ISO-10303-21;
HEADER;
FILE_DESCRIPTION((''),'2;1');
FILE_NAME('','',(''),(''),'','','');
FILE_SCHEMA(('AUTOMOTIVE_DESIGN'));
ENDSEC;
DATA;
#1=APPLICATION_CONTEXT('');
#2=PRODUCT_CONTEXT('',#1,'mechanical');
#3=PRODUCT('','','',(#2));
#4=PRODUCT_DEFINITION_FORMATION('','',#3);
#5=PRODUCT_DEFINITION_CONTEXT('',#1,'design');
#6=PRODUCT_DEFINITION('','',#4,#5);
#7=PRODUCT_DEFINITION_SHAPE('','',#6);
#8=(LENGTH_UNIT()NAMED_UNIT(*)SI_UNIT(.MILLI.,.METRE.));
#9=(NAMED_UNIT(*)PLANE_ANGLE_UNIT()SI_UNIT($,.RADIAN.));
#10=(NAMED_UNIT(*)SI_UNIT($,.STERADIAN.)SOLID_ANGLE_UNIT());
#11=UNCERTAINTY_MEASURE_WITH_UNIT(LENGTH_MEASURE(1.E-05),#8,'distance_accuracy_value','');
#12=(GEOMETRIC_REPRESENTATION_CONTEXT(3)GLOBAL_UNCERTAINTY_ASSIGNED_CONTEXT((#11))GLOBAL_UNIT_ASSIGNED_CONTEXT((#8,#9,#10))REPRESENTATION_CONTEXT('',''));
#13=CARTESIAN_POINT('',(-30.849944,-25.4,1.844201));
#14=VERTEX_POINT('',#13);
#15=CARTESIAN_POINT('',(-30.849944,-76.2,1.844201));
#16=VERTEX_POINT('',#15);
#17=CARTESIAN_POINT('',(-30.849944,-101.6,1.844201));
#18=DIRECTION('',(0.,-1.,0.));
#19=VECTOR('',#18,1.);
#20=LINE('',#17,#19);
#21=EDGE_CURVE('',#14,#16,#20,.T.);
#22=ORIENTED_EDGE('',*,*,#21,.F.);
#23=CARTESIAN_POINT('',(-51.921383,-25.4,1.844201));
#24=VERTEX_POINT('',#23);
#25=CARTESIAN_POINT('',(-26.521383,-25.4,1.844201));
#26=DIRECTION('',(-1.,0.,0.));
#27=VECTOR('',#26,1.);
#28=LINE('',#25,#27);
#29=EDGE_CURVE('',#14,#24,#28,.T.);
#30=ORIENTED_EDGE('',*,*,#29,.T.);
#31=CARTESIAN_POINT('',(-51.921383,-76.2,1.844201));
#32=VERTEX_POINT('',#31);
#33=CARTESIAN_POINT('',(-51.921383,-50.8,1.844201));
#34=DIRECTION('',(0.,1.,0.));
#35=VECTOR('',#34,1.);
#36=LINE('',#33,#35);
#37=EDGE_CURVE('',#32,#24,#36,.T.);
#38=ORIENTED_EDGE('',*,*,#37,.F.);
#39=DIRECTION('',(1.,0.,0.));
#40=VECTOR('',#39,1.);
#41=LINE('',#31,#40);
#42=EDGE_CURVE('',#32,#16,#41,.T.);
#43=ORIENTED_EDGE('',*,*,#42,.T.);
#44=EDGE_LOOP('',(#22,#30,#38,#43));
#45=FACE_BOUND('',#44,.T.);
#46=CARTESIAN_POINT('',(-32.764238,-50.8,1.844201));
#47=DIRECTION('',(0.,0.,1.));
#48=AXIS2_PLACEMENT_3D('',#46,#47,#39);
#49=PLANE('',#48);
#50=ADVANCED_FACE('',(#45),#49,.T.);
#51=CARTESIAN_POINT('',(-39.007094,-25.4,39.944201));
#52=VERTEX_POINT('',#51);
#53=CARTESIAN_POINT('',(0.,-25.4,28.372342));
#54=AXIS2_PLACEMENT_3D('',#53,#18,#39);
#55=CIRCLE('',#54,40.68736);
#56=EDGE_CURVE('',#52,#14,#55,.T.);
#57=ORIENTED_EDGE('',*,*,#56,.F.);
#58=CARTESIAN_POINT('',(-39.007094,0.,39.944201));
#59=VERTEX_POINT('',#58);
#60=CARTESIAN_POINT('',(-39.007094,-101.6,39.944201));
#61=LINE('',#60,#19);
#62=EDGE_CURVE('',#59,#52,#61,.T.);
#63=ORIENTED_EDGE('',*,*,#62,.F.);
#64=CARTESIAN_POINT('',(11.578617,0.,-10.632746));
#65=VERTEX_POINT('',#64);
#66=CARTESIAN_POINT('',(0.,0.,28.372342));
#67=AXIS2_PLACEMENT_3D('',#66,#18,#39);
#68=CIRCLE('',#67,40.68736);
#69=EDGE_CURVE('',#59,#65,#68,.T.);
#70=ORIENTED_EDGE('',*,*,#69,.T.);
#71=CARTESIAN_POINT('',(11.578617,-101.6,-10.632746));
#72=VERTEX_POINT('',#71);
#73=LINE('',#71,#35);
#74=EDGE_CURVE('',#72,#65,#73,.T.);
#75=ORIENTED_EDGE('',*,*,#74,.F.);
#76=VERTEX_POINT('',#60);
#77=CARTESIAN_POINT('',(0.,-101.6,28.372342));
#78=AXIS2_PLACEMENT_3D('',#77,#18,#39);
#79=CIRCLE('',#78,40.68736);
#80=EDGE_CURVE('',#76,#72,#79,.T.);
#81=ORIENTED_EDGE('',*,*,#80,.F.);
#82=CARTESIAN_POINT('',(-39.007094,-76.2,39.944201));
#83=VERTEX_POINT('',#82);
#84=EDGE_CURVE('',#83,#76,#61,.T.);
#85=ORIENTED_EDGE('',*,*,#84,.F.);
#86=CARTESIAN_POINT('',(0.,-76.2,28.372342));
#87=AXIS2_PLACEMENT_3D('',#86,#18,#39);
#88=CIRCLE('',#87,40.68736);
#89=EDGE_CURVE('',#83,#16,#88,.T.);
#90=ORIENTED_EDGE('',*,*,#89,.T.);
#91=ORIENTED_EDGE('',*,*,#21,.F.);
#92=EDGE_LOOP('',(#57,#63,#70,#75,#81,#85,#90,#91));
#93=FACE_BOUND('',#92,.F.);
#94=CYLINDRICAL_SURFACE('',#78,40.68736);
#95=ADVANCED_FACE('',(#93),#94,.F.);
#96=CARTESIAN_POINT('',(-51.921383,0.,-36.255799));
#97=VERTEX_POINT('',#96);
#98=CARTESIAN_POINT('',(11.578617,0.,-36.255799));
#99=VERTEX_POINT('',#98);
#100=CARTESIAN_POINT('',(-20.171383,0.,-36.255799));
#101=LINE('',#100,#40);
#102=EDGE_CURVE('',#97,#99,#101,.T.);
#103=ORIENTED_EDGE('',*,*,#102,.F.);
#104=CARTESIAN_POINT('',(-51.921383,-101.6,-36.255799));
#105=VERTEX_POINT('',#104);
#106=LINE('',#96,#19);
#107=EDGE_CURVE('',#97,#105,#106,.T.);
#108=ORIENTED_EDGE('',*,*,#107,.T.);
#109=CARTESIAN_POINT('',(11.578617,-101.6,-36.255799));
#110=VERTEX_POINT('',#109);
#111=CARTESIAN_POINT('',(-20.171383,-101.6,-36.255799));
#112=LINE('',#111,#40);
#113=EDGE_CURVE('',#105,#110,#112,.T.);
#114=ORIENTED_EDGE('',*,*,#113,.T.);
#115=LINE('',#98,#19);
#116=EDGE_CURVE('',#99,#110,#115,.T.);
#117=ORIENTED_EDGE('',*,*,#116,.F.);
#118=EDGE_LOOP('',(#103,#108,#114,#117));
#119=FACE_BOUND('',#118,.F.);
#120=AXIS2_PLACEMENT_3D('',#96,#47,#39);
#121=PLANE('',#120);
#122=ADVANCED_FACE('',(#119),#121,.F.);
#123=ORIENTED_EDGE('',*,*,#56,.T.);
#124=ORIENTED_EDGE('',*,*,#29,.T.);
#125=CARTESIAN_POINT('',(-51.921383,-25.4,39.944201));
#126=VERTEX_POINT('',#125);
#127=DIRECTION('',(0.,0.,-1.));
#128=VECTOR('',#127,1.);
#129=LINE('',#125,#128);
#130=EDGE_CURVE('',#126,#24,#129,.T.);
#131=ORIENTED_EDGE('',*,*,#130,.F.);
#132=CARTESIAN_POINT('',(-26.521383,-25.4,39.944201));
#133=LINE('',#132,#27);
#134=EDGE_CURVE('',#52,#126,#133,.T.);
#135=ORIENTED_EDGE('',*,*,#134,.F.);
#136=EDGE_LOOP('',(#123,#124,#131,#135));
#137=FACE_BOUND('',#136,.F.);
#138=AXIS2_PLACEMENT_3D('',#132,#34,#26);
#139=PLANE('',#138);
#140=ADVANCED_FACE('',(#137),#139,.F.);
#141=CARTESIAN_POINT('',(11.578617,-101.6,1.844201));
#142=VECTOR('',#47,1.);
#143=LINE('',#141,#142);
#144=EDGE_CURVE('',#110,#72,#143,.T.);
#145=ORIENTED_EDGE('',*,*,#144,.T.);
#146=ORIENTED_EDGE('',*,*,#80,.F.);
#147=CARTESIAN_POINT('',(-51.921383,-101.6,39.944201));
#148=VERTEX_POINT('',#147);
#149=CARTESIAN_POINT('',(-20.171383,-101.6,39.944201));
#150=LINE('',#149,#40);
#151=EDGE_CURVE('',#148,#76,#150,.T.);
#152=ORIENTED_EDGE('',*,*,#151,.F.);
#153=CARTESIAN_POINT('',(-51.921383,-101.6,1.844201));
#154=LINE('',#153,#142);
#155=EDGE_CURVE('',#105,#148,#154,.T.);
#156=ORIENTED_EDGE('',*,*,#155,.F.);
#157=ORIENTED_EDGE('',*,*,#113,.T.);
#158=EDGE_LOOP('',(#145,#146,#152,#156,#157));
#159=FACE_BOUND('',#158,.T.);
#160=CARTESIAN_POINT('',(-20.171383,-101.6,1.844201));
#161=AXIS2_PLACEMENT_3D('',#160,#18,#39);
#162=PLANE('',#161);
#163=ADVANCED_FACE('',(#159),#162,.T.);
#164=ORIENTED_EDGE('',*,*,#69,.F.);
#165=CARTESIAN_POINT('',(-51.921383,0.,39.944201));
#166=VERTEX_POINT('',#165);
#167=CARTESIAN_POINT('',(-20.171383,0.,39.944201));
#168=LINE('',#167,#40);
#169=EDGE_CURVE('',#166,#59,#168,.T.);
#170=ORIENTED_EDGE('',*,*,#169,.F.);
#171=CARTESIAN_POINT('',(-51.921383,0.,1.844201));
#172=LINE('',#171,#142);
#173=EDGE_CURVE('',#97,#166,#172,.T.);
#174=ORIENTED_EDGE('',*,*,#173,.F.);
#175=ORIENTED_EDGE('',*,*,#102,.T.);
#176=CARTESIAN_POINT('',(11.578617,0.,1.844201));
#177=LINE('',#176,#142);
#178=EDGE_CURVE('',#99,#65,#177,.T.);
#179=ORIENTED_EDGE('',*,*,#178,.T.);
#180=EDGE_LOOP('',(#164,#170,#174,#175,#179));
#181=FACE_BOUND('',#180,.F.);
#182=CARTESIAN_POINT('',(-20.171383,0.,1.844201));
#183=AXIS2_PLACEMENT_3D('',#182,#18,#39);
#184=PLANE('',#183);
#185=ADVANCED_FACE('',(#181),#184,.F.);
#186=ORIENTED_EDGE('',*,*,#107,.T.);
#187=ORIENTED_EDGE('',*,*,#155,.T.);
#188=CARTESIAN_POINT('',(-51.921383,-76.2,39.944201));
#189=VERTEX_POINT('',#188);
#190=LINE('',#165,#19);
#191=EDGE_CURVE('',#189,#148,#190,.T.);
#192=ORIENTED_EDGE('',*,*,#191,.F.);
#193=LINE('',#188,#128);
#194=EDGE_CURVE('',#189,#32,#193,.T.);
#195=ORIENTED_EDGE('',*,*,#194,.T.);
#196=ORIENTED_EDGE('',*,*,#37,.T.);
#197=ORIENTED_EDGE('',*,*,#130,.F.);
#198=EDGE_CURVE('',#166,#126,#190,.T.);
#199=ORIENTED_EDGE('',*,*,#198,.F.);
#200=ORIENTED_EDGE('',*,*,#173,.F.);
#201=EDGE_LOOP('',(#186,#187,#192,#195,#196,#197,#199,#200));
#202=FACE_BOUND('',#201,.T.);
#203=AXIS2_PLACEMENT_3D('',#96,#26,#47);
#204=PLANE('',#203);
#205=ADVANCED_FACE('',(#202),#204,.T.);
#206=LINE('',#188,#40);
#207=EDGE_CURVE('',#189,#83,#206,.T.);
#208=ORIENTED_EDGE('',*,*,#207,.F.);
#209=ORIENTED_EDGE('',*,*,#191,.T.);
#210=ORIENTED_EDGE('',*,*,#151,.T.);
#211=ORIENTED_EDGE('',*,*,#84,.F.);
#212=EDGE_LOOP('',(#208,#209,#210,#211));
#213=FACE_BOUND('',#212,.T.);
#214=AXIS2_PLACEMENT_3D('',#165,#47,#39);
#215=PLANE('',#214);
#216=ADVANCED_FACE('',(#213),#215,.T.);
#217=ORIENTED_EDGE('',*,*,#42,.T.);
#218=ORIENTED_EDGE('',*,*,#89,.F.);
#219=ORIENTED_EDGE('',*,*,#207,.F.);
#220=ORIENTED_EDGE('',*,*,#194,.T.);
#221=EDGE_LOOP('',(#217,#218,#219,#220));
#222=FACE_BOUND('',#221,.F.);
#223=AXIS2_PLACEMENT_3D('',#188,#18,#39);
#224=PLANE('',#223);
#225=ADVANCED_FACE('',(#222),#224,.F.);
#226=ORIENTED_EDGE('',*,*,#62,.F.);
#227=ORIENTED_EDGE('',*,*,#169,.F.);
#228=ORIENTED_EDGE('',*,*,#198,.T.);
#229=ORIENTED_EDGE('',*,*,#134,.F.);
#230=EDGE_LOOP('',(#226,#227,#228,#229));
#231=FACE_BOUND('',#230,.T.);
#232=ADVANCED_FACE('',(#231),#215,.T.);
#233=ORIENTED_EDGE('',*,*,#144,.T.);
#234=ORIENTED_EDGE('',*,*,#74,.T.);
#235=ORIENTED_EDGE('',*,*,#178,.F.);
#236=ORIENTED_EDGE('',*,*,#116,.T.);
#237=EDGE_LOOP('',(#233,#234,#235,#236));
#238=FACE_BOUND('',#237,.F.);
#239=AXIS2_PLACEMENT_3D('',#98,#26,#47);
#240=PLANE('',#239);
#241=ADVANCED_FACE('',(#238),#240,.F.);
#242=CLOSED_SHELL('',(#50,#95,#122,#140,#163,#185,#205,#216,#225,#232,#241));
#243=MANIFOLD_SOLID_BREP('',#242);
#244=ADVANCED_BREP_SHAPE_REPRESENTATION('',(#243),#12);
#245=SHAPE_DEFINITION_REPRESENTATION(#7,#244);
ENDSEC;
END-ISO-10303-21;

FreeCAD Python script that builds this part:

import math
import FreeCAD as App
import Part
import Sketcher
Q = App.Units.Quantity

doc = App.newDocument("Part")
params = doc.addObject("Spreadsheet::Sheet", "Params")
for row, (alias, value) in enumerate([
    ("sketch1_height", "3 in"),
    ("sketch1_width", "2.5 in"),
    ("pad1_length", "4 in"),
    ("pocket1_length", "5.67 in"),
    ("sketch3_width", "1 in"),
    ("sketch3_height", "2 in"),
    ("pocket2_length", "1.5 in"),
], start=1):
    params.set(f"A{row}", alias)
    params.set(f"B{row}", "=" + value)
    params.setAlias(f"B{row}", alias)

body = doc.addObject("PartDesign::Body", "Body")

# Sketch on XZ plane
sketch1 = body.newObject("Sketcher::SketchObject", "Sketch")
sketch1.AttachmentSupport = (doc.getObject("XZ_Plane"), [""])
sketch1.MapMode = "FlatFace"
sketch1.addGeometry([
    Part.LineSegment(App.Vector(-51.921383, 39.944201, 0), App.Vector(-51.921383, -36.255799, 0)),
    Part.LineSegment(App.Vector(-51.921383, -36.255799, 0), App.Vector(11.578617, -36.255799, 0)),
    Part.LineSegment(App.Vector(11.578617, -36.255799, 0), App.Vector(11.578617, 39.944201, 0)),
    Part.LineSegment(App.Vector(11.578617, 39.944201, 0), App.Vector(-51.921383, 39.944201, 0)),
], False)
sketch1.addConstraint([
    Sketcher.Constraint("Coincident", 0, 2, 1, 1),
    Sketcher.Constraint("Coincident", 1, 2, 2, 1),
    Sketcher.Constraint("Coincident", 2, 2, 3, 1),
    Sketcher.Constraint("Coincident", 3, 2, 0, 1),
    Sketcher.Constraint("Vertical", 0),
    Sketcher.Constraint("Horizontal", 1),
    Sketcher.Constraint("Vertical", 2),
    Sketcher.Constraint("Horizontal", 3),
    Sketcher.Constraint("DistanceY", 0, 2, 0, 1, Q("3 in")),
    Sketcher.Constraint("DistanceX", 1, 1, 1, 2, Q("2.5 in")),
    Sketcher.Constraint("DistanceY", 0, 2, -1, 1, Q("36.255799 mm")),
    Sketcher.Constraint("DistanceX", 0, 2, -1, 1, Q("51.921383 mm")),
])
sketch1.setExpression("Constraints[8]", "Params.sketch1_height")
sketch1.setExpression("Constraints[9]", "Params.sketch1_width")
pad1 = body.newObject("PartDesign::Pad", "Pad")
pad1.Profile = sketch1
pad1.setExpression("Length", "Params.pad1_length")

# Sketch on XZ plane
sketch2 = body.newObject("Sketcher::SketchObject", "Sketch001")
sketch2.AttachmentSupport = (doc.getObject("XZ_Plane"), [""])
sketch2.MapMode = "FlatFace"
sketch2.AttachmentOffset = App.Placement(App.Vector(0, 0, 4 * 25.4), App.Rotation())
sketch2.addGeometry([
    Part.ArcOfCircle(Part.Circle(App.Vector(0, 28.372342, 0), App.Vector(0, 0, 1), 40.68736), math.radians(-73.466537), math.radians(0)),
    Part.ArcOfCircle(Part.Circle(App.Vector(0, 28.372342, 0), App.Vector(0, 0, 1), 40.68736), math.radians(0), math.radians(286.533463)),
], False)
sketch2.addConstraint([
    Sketcher.Constraint("Tangent", 0, 1, 1, 2),
    Sketcher.Constraint("Coincident", 1, 1, 0, 2),
    Sketcher.Constraint("PointOnObject", 0, 3, -2),
    Sketcher.Constraint("Horizontal", 0, 3, 1, 1),
    Sketcher.Constraint("Radius", 0, Q("40.68736 mm")),
    Sketcher.Constraint("DistanceY", -1, 1, 0, 3, Q("28.372342 mm")),
    Sketcher.Constraint("DistanceY", 0, 1, 0, 3, Q("39.005088 mm")),
])
pocket1 = body.newObject("PartDesign::Pocket", "Pocket")
pocket1.Profile = sketch2
pocket1.setExpression("Length", "Params.pocket1_length")

# Sketch on XY plane
sketch3 = body.newObject("Sketcher::SketchObject", "Sketch002")
sketch3.AttachmentSupport = (doc.getObject("XY_Plane"), [""])
sketch3.MapMode = "FlatFace"
sketch3.AttachmentOffset = App.Placement(App.Vector(0, 0, 39.944201), App.Rotation())
sketch3.addGeometry([
    Part.LineSegment(App.Vector(-26.521383, -76.2, 0), App.Vector(-26.521383, -25.4, 0)),
    Part.LineSegment(App.Vector(-26.521383, -25.4, 0), App.Vector(-51.921383, -25.4, 0)),
    Part.LineSegment(App.Vector(-51.921383, -25.4, 0), App.Vector(-51.921383, -76.2, 0)),
    Part.LineSegment(App.Vector(-51.921383, -76.2, 0), App.Vector(-26.521383, -76.2, 0)),
], False)
sketch3.addConstraint([
    Sketcher.Constraint("Coincident", 0, 2, 1, 1),
    Sketcher.Constraint("Coincident", 1, 2, 2, 1),
    Sketcher.Constraint("Coincident", 2, 2, 3, 1),
    Sketcher.Constraint("Coincident", 3, 2, 0, 1),
    Sketcher.Constraint("Vertical", 0),
    Sketcher.Constraint("Horizontal", 1),
    Sketcher.Constraint("Vertical", 2),
    Sketcher.Constraint("Horizontal", 3),
    Sketcher.Constraint("DistanceX", 1, 2, 1, 1, Q("1 in")),
    Sketcher.Constraint("DistanceY", 0, 1, 0, 2, Q("2 in")),
    Sketcher.Constraint("DistanceY", 0, 2, -1, 1, Q("1 in")),
    Sketcher.Constraint("DistanceX", 0, 2, -1, 1, Q("26.521383 mm")),
])
sketch3.setExpression("Constraints[8]", "Params.sketch3_width")
sketch3.setExpression("Constraints[9]", "Params.sketch3_height")
pocket2 = body.newObject("PartDesign::Pocket", "Pocket001")
pocket2.Profile = sketch3
pocket2.setExpression("Length", "Params.pocket2_length")

doc.recompute()
